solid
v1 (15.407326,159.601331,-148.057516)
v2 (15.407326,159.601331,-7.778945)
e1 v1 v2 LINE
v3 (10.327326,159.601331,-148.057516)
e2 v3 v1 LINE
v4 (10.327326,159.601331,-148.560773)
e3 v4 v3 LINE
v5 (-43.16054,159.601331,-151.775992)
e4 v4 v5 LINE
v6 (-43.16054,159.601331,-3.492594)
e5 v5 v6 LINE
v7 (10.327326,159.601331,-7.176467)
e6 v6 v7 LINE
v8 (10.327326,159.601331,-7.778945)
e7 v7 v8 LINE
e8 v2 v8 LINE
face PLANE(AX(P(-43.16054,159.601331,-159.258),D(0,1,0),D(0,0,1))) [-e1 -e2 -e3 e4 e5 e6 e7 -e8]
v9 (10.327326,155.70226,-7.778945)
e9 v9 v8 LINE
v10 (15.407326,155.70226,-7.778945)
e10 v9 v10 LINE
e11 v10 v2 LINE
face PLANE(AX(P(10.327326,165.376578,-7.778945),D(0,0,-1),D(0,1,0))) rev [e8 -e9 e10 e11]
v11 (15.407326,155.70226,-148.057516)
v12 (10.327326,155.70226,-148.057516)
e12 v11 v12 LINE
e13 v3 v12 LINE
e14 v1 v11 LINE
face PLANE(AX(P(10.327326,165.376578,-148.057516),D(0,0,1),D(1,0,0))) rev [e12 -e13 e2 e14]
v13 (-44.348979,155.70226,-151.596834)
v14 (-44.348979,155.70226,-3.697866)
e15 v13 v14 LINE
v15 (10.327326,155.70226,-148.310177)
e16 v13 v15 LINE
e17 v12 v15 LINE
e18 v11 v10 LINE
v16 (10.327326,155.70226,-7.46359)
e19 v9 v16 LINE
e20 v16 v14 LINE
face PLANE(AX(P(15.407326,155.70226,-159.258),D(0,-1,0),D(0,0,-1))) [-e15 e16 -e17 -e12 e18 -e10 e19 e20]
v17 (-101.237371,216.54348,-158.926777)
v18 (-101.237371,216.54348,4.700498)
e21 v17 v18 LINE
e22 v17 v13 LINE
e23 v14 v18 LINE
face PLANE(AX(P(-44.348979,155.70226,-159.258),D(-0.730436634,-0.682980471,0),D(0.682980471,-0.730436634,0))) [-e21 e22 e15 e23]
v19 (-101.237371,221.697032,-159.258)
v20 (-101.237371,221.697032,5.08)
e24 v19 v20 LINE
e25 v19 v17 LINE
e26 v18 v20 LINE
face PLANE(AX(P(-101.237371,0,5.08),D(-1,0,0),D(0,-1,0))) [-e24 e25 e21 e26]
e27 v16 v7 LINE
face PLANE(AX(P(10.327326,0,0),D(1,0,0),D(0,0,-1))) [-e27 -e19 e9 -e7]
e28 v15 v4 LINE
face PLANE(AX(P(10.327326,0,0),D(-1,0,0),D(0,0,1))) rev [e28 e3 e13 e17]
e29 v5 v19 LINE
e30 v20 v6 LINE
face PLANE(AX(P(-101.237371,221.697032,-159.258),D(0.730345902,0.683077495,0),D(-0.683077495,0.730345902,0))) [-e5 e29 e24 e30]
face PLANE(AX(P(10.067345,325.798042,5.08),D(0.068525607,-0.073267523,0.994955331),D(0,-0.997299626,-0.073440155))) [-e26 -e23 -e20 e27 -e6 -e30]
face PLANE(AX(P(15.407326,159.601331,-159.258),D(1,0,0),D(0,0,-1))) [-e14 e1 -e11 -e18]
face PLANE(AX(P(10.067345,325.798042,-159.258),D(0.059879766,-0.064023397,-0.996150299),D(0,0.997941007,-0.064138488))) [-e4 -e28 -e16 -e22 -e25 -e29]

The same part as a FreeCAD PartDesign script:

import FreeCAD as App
import Part
import Sketcher
from FreeCAD import Vector
Q = App.Units.Quantity

doc = App.newDocument("Part")
body = doc.addObject("PartDesign::Body", "Body")

# Sketch on XY plane
sketch1 = body.newObject("Sketcher::SketchObject", "Sketch")
sketch1.AttachmentSupport = (doc.getObject("XY_Plane"), [""])
sketch1.MapMode = "FlatFace"
sketch1.addGeometry(Part.LineSegment(Vector(-101.237371, 216.54348, 0), Vector(-101.237371, 120.65, 0)), False)
sketch1.addGeometry(Part.LineSegment(Vector(-101.237371, 120.65, 0), Vector(0, 0, 0)), False)
sketch1.addGeometry(Part.LineSegment(Vector(0, 0, 0), Vector(0, 216.54348, 0)), False)
sketch1.addGeometry(Part.LineSegment(Vector(0, 216.54348, 0), Vector(-101.237371, 216.54348, 0)), False)
sketch1.addConstraint(Sketcher.Constraint("Coincident", 0, 2, 1, 1))
sketch1.addConstraint(Sketcher.Constraint("Coincident", 1, 2, 2, 1))
sketch1.addConstraint(Sketcher.Constraint("Coincident", 2, 2, 3, 1))
sketch1.addConstraint(Sketcher.Constraint("Coincident", 3, 2, 0, 1))
sketch1.addConstraint(Sketcher.Constraint("Vertical", 0))
sketch1.addConstraint(Sketcher.Constraint("Vertical", 2))
sketch1.addConstraint(Sketcher.Constraint("Horizontal", 3))
sketch1.addConstraint(Sketcher.Constraint("Coincident", 1, 2, -1, 1))
sketch1.addConstraint(Sketcher.Constraint("Angle", 1, Q("-50 deg")))
sketch1.addConstraint(Sketcher.Constraint("DistanceY", -1, 1, 0, 2, Q("4.75 in")))
sketch1.addConstraint(Sketcher.Constraint("DistanceY", 0, 2, 0, 1, 95.89348))
pad1 = body.newObject("PartDesign::Pad", "Pad")
pad1.Profile = sketch1
pad1.Length = Q("0.2 in")

# Sketch on XY plane
sketch2 = body.newObject("Sketcher::SketchObject", "Sketch001")
sketch2.AttachmentSupport = (doc.getObject("XY_Plane"), [""])
sketch2.MapMode = "FlatFace"
sketch2.AttachmentOffset = App.Placement(Vector(0, 0, 0.2 * 25.4), App.Rotation())
sketch2.addGeometry(Part.LineSegment(Vector(-101.237371, 216.54348, 0), Vector(0, 108.27174, 0)), False)
sketch2.addGeometry(Part.LineSegment(Vector(0, 108.27174, 0), Vector(0, 216.54348, 0)), False)
sketch2.addGeometry(Part.LineSegment(Vector(0, 216.54348, 0), Vector(-101.237371, 216.54348, 0)), False)
sketch2.addConstraint(Sketcher.Constraint("Coincident", 0, 2, 1, 1))
sketch2.addConstraint(Sketcher.Constraint("Coincident", 1, 2, 2, 1))
sketch2.addConstraint(Sketcher.Constraint("Coincident", 2, 2, 0, 1))
sketch2.addConstraint(Sketcher.Constraint("Vertical", 1))
sketch2.addConstraint(Sketcher.Constraint("Horizontal", 2))
sketch2.addConstraint(Sketcher.Constraint("PointOnObject", 0, 2, -2))
sketch2.addConstraint(Sketcher.Constraint("DistanceX", 2, 2, 2, 1, 101.237371))
sketch2.addConstraint(Sketcher.Constraint("DistanceY", 1, 1, 1, 2, 108.27174))
sketch2.addConstraint(Sketcher.Constraint("DistanceY", -1, 1, 0, 2, 108.27174))
pocket1 = body.newObject("PartDesign::Pocket", "Pocket")
pocket1.Profile = sketch2
pocket1.Length = Q("2 in")

# Sketch on XY plane
sketch3 = body.newObject("Sketcher::SketchObject", "Sketch002")
sketch3.AttachmentSupport = (doc.getObject("XY_Plane"), [""])
sketch3.MapMode = "FlatFace"
sketch3.AttachmentOffset = App.Placement(Vector(0, 0, 0.2 * 25.4), App.Rotation())
sketch3.addGeometry(Part.LineSegment(Vector(-11.578773, 133.188205, 0), Vector(-11.578773, -8.401858, 0)), False)
sketch3.addGeometry(Part.LineSegment(Vector(-11.578773, -8.401858, 0), Vector(22.799061, -8.401858, 0)), False)
sketch3.addGeometry(Part.LineSegment(Vector(22.799061, -8.401858, 0), Vector(22.799061, 133.188205, 0)), False)
sketch3.addGeometry(Part.LineSegment(Vector(22.799061, 133.188205, 0), Vector(-11.578773, 133.188205, 0)), False)
sketch3.addConstraint(Sketcher.Constraint("Coincident", 0, 2, 1, 1))
sketch3.addConstraint(Sketcher.Constraint("Coincident", 1, 2, 2, 1))
sketch3.addConstraint(Sketcher.Constraint("Coincident", 2, 2, 3, 1))
sketch3.addConstraint(Sketcher.Constraint("Coincident", 3, 2, 0, 1))
sketch3.addConstraint(Sketcher.Constraint("Vertical", 0))
sketch3.addConstraint(Sketcher.Constraint("Horizontal", 1))
sketch3.addConstraint(Sketcher.Constraint("Vertical", 2))
sketch3.addConstraint(Sketcher.Constraint("Horizontal", 3))
sketch3.addConstraint(Sketcher.Constraint("DistanceX", 1, 1, 1, 2, 34.377834))
sketch3.addConstraint(Sketcher.Constraint("DistanceY", 0, 2, 0, 1, 141.590062))
sketch3.addConstraint(Sketcher.Constraint("DistanceX", -1, 1, 1, 2, 22.799061))
sketch3.addConstraint(Sketcher.Constraint("DistanceY", 0, 2, -1, 1, 8.401858))
pocket2 = body.newObject("PartDesign::Pocket", "Pocket001")
pocket2.Profile = sketch3
pocket2.Length = Q("1 in")

# Sketch on an angled plane
sketch4 = body.newObject("Sketcher::SketchObject", "Sketch003")
sketch4.Placement = App.Placement(Vector(0, 0, 0), App.Rotation(Vector(0, 0, 1), Vector(-0.64278761, 0.766044443, 0), Vector(-0.766044443, -0.64278761, 0), "ZXY"))
sketch4.addGeometry(Part.Circle(Vector(2.54, 26.412934, 0), Vector(0, 0, 1), 1.4224), False)
sketch4.addGeometry(Part.Circle(Vector(2.54, 153.412934, 0), Vector(0, 0, 1), 1.4224), False)
sketch4.addConstraint(Sketcher.Constraint("Equal", 0, 1))
sketch4.addConstraint(Sketcher.Constraint("Vertical", 0, 3, 1, 3))
sketch4.addConstraint(Sketcher.Constraint("Diameter", 0, Q("0.112 in")))
sketch4.addConstraint(Sketcher.Constraint("DistanceY", 0, 3, 1, 3, Q("5 in")))
sketch4.addConstraint(Sketcher.Constraint("DistanceX", -1, 1, 0, 3, Q("0.1 in")))
sketch4.addConstraint(Sketcher.Constraint("DistanceY", -1, 1, 0, 3, 26.412934))
pocket3 = body.newObject("PartDesign::Pocket", "Pocket002")
pocket3.Profile = sketch4
pocket3.Length = Q("0.2 in")

# Sketch on XY plane
sketch5 = body.newObject("Sketcher::SketchObject", "Sketch004")
sketch5.AttachmentSupport = (doc.getObject("XY_Plane"), [""])
sketch5.MapMode = "FlatFace"
sketch5.AttachmentOffset = App.Placement(Vector(0, 0, 0.2 * 25.4), App.Rotation())
sketch5.addGeometry(Part.LineSegment(Vector(-101.237371, 221.697032, 0), Vector(-101.237371, 216.54348, 0)), False)
sketch5.addGeometry(Part.LineSegment(Vector(-101.237371, 216.54348, 0), Vector(-44.348979, 155.70226, 0)), False)
sketch5.addGeometry(Part.LineSegment(Vector(-44.348979, 155.70226, 0), Vector(15.407326, 155.70226, 0)), False)
sketch5.addGeometry(Part.LineSegment(Vector(15.407326, 155.70226, 0), Vector(15.407326, 159.601331, 0)), False)
sketch5.addGeometry(Part.LineSegment(Vector(15.407326, 159.601331, 0), Vector(-43.16054, 159.601331, 0)), False)
sketch5.addGeometry(Part.LineSegment(Vector(-43.16054, 159.601331, 0), Vector(-101.237371, 221.697032, 0)), False)
sketch5.addConstraint(Sketcher.Constraint("Coincident", 0, 2, 1, 1))
sketch5.addConstraint(Sketcher.Constraint("Coincident", 1, 2, 2, 1))
sketch5.addConstraint(Sketcher.Constraint("Coincident", 2, 2, 3, 1))
sketch5.addConstraint(Sketcher.Constraint("Coincident", 3, 2, 4, 1))
sketch5.addConstraint(Sketcher.Constraint("Coincident", 4, 2, 5, 1))
sketch5.addConstraint(Sketcher.Constraint("Coincident", 5, 2, 0, 1))
sketch5.addConstraint(Sketcher.Constraint("Vertical", 0))
sketch5.addConstraint(Sketcher.Constraint("Horizontal", 2))
sketch5.addConstraint(Sketcher.Constraint("Vertical", 3))
sketch5.addConstraint(Sketcher.Constraint("Horizontal", 4))
sketch5.addConstraint(Sketcher.Constraint("DistanceY", 0, 2, 0, 1, 5.153551))
sketch5.addConstraint(Sketcher.Constraint("DistanceY", 3, 1, 3, 2, 3.899071))
sketch5.addConstraint(Sketcher.Constraint("DistanceY", 4, 2, 5, 2, 62.0957))
sketch5.addConstraint(Sketcher.Constraint("DistanceX", 2, 1, 2, 2, 59.756305))
sketch5.addConstraint(Sketcher.Constraint("DistanceX", 4, 2, 4, 1, 58.567866))
sketch5.addConstraint(Sketcher.Constraint("DistanceX", 0, 2, -1, 1, 101.237371))
sketch5.addConstraint(Sketcher.Constraint("DistanceY", -1, 1, 0, 2, 216.54348))
sketch5.addConstraint(Sketcher.Constraint("DistanceX", 1, 2, -1, 1, 44.348979))
pad2 = body.newObject("PartDesign::Pad", "Pad001")
pad2.Profile = sketch5
pad2.Length = Q("6.47 in")
pad2.Reversed = True

# Sketch on XY plane
sketch6 = body.newObject("Sketcher::SketchObject", "Sketch005")
sketch6.AttachmentSupport = (doc.getObject("XY_Plane"), [""])
sketch6.MapMode = "FlatFace"
sketch6.AttachmentOffset = App.Placement(Vector(0, 0, -2.5 * 25.4), App.Rotation())
sketch6.addGeometry(Part.LineSegment(Vector(-11.578773, 120.655051, 0), Vector(-11.578773, 13.799044, 0)), False)
sketch6.addGeometry(Part.LineSegment(Vector(-11.578773, 13.799044, 0), Vector(-101.237371, 120.65, 0)), False)
sketch6.addGeometry(Part.LineSegment(Vector(-101.237371, 120.65, 0), Vector(-101.237371, 216.54348, 0)), False)
sketch6.addGeometry(Part.LineSegment(Vector(-101.237371, 216.54348, 0), Vector(-11.578773, 120.655051, 0)), False)
sketch6.addConstraint(Sketcher.Constraint("Coincident", 0, 2, 1, 1))
sketch6.addConstraint(Sketcher.Constraint("Coincident", 1, 2, 2, 1))
sketch6.addConstraint(Sketcher.Constraint("Coincident", 2, 2, 3, 1))
sketch6.addConstraint(Sketcher.Constraint("Coincident", 3, 2, 0, 1))
sketch6.addConstraint(Sketcher.Constraint("Vertical", 0))
sketch6.addConstraint(Sketcher.Constraint("Vertical", 2))
sketch6.addConstraint(Sketcher.Constraint("Angle", 1, Q("130 deg")))
sketch6.addConstraint(Sketcher.Constraint("DistanceY", -1, 1, 1, 2, Q("4.75 in")))
sketch6.addConstraint(Sketcher.Constraint("DistanceY", 2, 1, 2, 2, 95.89348))
sketch6.addConstraint(Sketcher.Constraint("DistanceY", 0, 2, 0, 1, 106.856007))
sketch6.addConstraint(Sketcher.Constraint("DistanceX", 1, 2, -1, 1, 101.237371))
sketch6.addConstraint(Sketcher.Constraint("DistanceY", -1, 1, 3, 2, 120.655051))
pocket4 = body.newObject("PartDesign::Pocket", "Pocket003")
pocket4.Profile = sketch6
pocket4.Length = Q("6 in")
pocket4.Reversed = True

# Sketch on an angled plane
sketch7 = body.newObject("Sketcher::SketchObject", "Sketch006")
sketch7.Placement = App.Placement(Vector(56.600313, 52.937109, 0), App.Rotation(Vector(0, 0, -1), Vector(-0.683077495, 0.730345902, 0), Vector(0.730345902, 0.683077495, 0), "ZXY"))
sketch7.addGeometry(Part.LineSegment(Vector(7.526342, 106.039781, 0), Vector(-5.08, 231.068488, 0)), False)
sketch7.addGeometry(Part.LineSegment(Vector(-5.08, 231.068488, 0), Vector(-5.08, 106.039781, 0)), False)
sketch7.addGeometry(Part.LineSegment(Vector(-5.08, 106.039781, 0), Vector(7.526342, 106.039781, 0)), False)
sketch7.addGeometry(Part.LineSegment(Vector(159.258, 231.068488, 0), Vector(148.255408, 106.039781, 0)), False)
sketch7.addGeometry(Part.LineSegment(Vector(148.255408, 106.039781, 0), Vector(159.258, 106.039781, 0)), False)
sketch7.addGeometry(Part.LineSegment(Vector(159.258, 106.039781, 0), Vector(159.258, 231.068488, 0)), False)
sketch7.addConstraint(Sketcher.Constraint("Coincident", 0, 2, 1, 1))
sketch7.addConstraint(Sketcher.Constraint("Coincident", 1, 2, 2, 1))
sketch7.addConstraint(Sketcher.Constraint("Coincident", 2, 2, 0, 1))
sketch7.addConstraint(Sketcher.Constraint("Coincident", 3, 2, 4, 1))
sketch7.addConstraint(Sketcher.Constraint("Coincident", 4, 2, 5, 1))
sketch7.addConstraint(Sketcher.Constraint("Coincident", 5, 2, 3, 1))
sketch7.addConstraint(Sketcher.Constraint("Vertical", 1))
sketch7.addConstraint(Sketcher.Constraint("Horizontal", 2))
sketch7.addConstraint(Sketcher.Constraint("Horizontal", 4))
sketch7.addConstraint(Sketcher.Constraint("Vertical", 5))
sketch7.addConstraint(Sketcher.Constraint("Horizontal", 2, 2, 3, 2))
sketch7.addConstraint(Sketcher.Constraint("Horizontal", 0, 2, 5, 2))
sketch7.addConstraint(Sketcher.Constraint("DistanceX", 0, 2, -1, 1, Q("0.2 in")))
sketch7.addConstraint(Sketcher.Constraint("DistanceX", -1, 1, 4, 2, Q("6.27 in")))
sketch7.addConstraint(Sketcher.Constraint("DistanceX", 2, 1, 2, 2, 12.606342))
sketch7.addConstraint(Sketcher.Constraint("DistanceX", 4, 1, 4, 2, 11.002592))
sketch7.addConstraint(Sketcher.Constraint("Distance", 3, 125.511891))
sketch7.addConstraint(Sketcher.Constraint("DistanceY", -1, 1, 0, 2, 231.068488))
pocket5 = body.newObject("PartDesign::Pocket", "Pocket004")
pocket5.Profile = sketch7
pocket5.Type = "ThroughAll"
pocket5.Midplane = True

# Sketch on YZ plane
sketch8 = body.newObject("Sketcher::SketchObject", "Sketch007")
sketch8.AttachmentSupport = (doc.getObject("YZ_Plane"), [""])
sketch8.MapMode = "FlatFace"
sketch8.AttachmentOffset = App.Placement(Vector(0, 0, 15.407326), App.Rotation())
sketch8.addGeometry(Part.LineSegment(Vector(165.376578, 11.287467, 0), Vector(148.001999, 11.287467, 0)), False)
sketch8.addGeometry(Part.LineSegment(Vector(148.001999, 11.287467, 0), Vector(148.001999, -7.778945, 0)), False)
sketch8.addGeometry(Part.LineSegment(Vector(148.001999, -7.778945, 0), Vector(165.376578, -7.778945, 0)), False)
sketch8.addGeometry(Part.LineSegment(Vector(165.376578, -7.778945, 0), Vector(165.376578, 11.287467, 0)), False)
sketch8.addGeometry(Part.LineSegment(Vector(165.376578, -148.057516, 0), Vector(148.001999, -148.057516, 0)), False)
sketch8.addGeometry(Part.LineSegment(Vector(148.001999, -148.057516, 0), Vector(148.001999, -165.13134, 0)), False)
sketch8.addGeometry(Part.LineSegment(Vector(148.001999, -165.13134, 0), Vector(165.376578, -165.13134, 0)), False)
sketch8.addGeometry(Part.LineSegment(Vector(165.376578, -165.13134, 0), Vector(165.376578, -148.057516, 0)), False)
sketch8.addConstraint(Sketcher.Constraint("Coincident", 0, 2, 1, 1))
sketch8.addConstraint(Sketcher.Constraint("Coincident", 1, 2, 2, 1))
sketch8.addConstraint(Sketcher.Constraint("Coincident", 2, 2, 3, 1))
sketch8.addConstraint(Sketcher.Constraint("Coincident", 3, 2, 0, 1))
sketch8.addConstraint(Sketcher.Constraint("Coincident", 4, 2, 5, 1))
sketch8.addConstraint(Sketcher.Constraint("Coincident", 5, 2, 6, 1))
sketch8.addConstraint(Sketcher.Constraint("Coincident", 6, 2, 7, 1))
sketch8.addConstraint(Sketcher.Constraint("Coincident", 7, 2, 4, 1))
sketch8.addConstraint(Sketcher.Constraint("Horizontal", 0))
sketch8.addConstraint(Sketcher.Constraint("Vertical", 1))
sketch8.addConstraint(Sketcher.Constraint("Horizontal", 2))
sketch8.addConstraint(Sketcher.Constraint("Vertical", 3))
sketch8.addConstraint(Sketcher.Constraint("Horizontal", 4))
sketch8.addConstraint(Sketcher.Constraint("Vertical", 5))
sketch8.addConstraint(Sketcher.Constraint("Horizontal", 6))
sketch8.addConstraint(Sketcher.Constraint("Vertical", 7))
sketch8.addConstraint(Sketcher.Constraint("Vertical", 1, 2, 4, 2))
sketch8.addConstraint(Sketcher.Constraint("Vertical", 3, 2, 6, 2))
sketch8.addConstraint(Sketcher.Constraint("DistanceX", 0, 2, 0, 1, 17.374579))
sketch8.addConstraint(Sketcher.Constraint("DistanceY", 1, 2, 1, 1, 19.066412))
sketch8.addConstraint(Sketcher.Constraint("DistanceX", -1, 1, 0, 2, 148.001999))
sketch8.addConstraint(Sketcher.Constraint("DistanceY", 5, 2, 5, 1, 17.073824))
sketch8.addConstraint(Sketcher.Constraint("DistanceY", 5, 2, -1, 1, 165.13134))
sketch8.addConstraint(Sketcher.Constraint("DistanceY", 4, 2, 1, 2, 140.27857))
pocket6 = body.newObject("PartDesign::Pocket", "Pocket005")
pocket6.Profile = sketch8
pocket6.Length = Q("0.2 in")

doc.recompute()
